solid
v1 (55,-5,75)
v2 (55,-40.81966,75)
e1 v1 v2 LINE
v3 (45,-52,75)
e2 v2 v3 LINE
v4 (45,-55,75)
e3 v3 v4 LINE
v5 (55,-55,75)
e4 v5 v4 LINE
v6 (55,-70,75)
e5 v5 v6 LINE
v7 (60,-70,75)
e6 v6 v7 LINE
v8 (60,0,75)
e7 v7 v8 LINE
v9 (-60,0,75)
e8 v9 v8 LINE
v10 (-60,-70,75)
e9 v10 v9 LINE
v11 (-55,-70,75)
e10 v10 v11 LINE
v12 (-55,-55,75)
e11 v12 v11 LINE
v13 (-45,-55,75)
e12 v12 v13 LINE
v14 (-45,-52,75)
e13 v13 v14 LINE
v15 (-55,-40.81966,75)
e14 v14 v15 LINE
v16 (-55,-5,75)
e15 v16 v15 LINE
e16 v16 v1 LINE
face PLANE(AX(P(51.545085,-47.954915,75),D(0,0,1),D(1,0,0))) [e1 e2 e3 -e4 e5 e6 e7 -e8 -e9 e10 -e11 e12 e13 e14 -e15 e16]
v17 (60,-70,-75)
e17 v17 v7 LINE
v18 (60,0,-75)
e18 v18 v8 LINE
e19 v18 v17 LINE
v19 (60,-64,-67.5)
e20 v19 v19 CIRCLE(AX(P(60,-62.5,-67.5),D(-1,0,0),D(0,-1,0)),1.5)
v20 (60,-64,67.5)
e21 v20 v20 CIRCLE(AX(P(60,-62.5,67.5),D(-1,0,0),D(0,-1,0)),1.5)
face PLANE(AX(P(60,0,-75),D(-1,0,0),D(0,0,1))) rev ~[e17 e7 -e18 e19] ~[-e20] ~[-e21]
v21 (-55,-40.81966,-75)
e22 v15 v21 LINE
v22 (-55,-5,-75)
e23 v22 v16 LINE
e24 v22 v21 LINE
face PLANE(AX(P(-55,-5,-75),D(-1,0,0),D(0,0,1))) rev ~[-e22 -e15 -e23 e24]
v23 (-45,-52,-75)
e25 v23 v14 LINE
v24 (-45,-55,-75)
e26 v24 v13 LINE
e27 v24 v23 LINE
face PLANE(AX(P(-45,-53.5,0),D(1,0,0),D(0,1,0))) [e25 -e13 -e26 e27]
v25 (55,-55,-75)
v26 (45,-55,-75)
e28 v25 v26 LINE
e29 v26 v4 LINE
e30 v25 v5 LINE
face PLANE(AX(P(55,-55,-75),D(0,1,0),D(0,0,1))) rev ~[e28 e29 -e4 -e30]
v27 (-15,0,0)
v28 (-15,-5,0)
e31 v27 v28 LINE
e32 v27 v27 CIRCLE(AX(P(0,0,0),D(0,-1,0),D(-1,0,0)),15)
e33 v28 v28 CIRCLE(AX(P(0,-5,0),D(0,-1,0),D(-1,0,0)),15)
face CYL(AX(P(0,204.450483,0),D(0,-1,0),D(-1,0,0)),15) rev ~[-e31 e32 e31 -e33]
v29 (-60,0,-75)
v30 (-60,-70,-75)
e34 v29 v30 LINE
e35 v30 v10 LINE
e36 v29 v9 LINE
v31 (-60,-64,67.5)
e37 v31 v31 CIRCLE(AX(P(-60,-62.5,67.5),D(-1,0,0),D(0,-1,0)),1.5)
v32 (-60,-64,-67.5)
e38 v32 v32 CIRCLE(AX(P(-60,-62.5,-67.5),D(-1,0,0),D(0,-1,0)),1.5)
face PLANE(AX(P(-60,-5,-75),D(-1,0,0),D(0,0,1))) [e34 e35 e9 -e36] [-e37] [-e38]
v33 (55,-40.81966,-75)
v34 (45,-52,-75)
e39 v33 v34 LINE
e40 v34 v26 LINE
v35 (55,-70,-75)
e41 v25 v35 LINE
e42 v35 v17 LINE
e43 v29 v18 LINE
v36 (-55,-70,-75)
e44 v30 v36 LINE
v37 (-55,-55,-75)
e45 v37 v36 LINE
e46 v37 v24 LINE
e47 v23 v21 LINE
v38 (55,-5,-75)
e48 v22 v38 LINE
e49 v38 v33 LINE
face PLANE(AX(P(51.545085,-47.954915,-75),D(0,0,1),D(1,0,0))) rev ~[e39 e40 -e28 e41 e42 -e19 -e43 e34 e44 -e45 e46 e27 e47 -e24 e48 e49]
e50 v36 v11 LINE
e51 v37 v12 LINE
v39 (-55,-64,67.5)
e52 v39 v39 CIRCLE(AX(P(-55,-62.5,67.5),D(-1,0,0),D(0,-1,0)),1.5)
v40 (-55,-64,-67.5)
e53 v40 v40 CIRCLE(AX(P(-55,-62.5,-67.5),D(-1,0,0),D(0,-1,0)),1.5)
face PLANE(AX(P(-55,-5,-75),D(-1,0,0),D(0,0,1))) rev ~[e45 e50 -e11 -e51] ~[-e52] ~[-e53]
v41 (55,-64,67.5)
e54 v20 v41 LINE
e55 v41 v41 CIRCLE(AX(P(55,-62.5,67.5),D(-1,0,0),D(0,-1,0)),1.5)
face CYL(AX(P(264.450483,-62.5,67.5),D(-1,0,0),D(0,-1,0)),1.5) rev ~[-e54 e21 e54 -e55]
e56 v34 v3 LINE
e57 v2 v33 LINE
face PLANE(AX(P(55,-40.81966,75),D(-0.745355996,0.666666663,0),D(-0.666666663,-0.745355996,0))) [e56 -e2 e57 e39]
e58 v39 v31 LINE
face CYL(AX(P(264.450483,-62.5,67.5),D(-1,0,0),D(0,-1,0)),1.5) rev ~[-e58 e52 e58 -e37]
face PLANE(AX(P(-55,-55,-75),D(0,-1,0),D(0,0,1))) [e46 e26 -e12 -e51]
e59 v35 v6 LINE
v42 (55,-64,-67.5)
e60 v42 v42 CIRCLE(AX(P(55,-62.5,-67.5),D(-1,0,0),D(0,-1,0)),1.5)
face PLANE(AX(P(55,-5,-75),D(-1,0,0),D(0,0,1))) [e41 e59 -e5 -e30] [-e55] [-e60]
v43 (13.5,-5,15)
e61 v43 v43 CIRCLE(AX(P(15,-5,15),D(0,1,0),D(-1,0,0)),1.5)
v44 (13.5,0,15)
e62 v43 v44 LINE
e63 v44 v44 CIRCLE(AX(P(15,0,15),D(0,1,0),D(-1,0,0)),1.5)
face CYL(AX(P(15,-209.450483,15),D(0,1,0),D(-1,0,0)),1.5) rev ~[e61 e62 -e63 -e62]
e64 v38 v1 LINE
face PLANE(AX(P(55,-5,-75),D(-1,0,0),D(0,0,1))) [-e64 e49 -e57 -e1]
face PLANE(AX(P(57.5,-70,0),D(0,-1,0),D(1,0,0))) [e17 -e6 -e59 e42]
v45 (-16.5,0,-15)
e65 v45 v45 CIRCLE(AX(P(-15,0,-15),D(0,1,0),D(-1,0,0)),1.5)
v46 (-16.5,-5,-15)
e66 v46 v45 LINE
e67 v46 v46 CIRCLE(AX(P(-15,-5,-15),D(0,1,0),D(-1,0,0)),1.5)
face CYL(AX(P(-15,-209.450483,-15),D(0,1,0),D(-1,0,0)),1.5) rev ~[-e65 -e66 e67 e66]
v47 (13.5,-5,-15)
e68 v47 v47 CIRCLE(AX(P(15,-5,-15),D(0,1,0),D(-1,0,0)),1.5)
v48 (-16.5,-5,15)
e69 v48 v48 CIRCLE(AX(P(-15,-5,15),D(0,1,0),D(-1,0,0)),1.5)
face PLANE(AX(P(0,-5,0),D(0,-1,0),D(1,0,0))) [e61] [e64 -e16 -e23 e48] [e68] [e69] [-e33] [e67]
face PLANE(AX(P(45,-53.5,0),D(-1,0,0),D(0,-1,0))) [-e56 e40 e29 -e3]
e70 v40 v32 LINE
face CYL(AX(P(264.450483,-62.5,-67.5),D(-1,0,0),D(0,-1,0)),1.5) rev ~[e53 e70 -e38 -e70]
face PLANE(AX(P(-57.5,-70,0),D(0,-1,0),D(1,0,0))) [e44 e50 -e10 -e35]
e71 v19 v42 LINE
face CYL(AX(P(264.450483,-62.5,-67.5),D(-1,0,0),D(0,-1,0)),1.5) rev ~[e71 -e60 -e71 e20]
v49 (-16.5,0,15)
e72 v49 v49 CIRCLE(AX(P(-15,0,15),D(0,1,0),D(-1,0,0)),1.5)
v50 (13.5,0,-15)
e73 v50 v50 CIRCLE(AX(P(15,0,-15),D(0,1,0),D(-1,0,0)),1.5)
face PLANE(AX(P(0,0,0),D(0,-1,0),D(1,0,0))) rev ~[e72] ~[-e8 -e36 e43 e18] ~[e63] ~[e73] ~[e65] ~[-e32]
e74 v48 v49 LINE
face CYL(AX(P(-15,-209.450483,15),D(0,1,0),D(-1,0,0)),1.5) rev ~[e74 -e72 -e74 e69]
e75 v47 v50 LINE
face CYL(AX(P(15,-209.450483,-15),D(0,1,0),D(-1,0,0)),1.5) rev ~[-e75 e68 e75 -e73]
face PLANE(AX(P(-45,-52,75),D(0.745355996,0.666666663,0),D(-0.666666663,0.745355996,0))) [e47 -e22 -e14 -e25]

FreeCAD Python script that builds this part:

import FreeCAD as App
import Part
import Sketcher

V = App.Vector

doc = App.newDocument("Part")
body = doc.addObject("PartDesign::Body", "Body")

# Sketch on XZ plane
sketch1 = body.newObject("Sketcher::SketchObject", "Sketch")
sketch1.AttachmentSupport = (doc.getObject("XZ_Plane"), [""])
sketch1.MapMode = "FlatFace"
sketch1.addGeometry([
    Part.LineSegment(V(-60, 75, 0), V(-60, -75, 0)),
    Part.LineSegment(V(-60, -75, 0), V(60, -75, 0)),
    Part.LineSegment(V(60, -75, 0), V(60, 75, 0)),
    Part.LineSegment(V(60, 75, 0), V(-60, 75, 0)),
], False)
sketch1.addConstraint([
    Sketcher.Constraint("Coincident", 0, 2, 1, 1),
    Sketcher.Constraint("Coincident", 1, 2, 2, 1),
    Sketcher.Constraint("Coincident", 2, 2, 3, 1),
    Sketcher.Constraint("Coincident", 3, 2, 0, 1),
    Sketcher.Constraint("Vertical", 0),
    Sketcher.Constraint("Horizontal", 1),
    Sketcher.Constraint("Vertical", 2),
    Sketcher.Constraint("Horizontal", 3),
    Sketcher.Constraint("Symmetric", 0, 2, 2, 2, -1, 1),
    Sketcher.Constraint("DistanceX", 1, 1, 1, 2, 120.0),
    Sketcher.Constraint("DistanceY", 0, 2, 0, 1, 150.0),
])
pad1 = body.newObject("PartDesign::Pad", "Pad")
pad1.Profile = sketch1
pad1.Length = 5

# Sketch on XZ plane
sketch2 = body.newObject("Sketcher::SketchObject", "Sketch001")
sketch2.AttachmentSupport = (doc.getObject("XZ_Plane"), [""])
sketch2.MapMode = "FlatFace"
sketch2.AttachmentOffset = App.Placement(V(0, 0, 5), App.Rotation())
sketch2.addGeometry([
    Part.LineSegment(V(-60, 75, 0), V(-60, -75, 0)),  # 0
    Part.LineSegment(V(-60, -75, 0), V(-55, -75, 0)),  # 1
    Part.LineSegment(V(-55, -75, 0), V(-55, 75, 0)),  # 2
    Part.LineSegment(V(-55, 75, 0), V(-60, 75, 0)),  # 3
    Part.LineSegment(V(55, 75, 0), V(55, -75, 0)),  # 4
    Part.LineSegment(V(55, -75, 0), V(60, -75, 0)),  # 5
    Part.LineSegment(V(60, -75, 0), V(60, 75, 0)),  # 6
    Part.LineSegment(V(60, 75, 0), V(55, 75, 0)),  # 7
], False)
sketch2.addConstraint([
    Sketcher.Constraint("Coincident", 0, 2, 1, 1),
    Sketcher.Constraint("Coincident", 1, 2, 2, 1),
    Sketcher.Constraint("Coincident", 2, 2, 3, 1),
    Sketcher.Constraint("Coincident", 3, 2, 0, 1),
    Sketcher.Constraint("Coincident", 4, 2, 5, 1),
    Sketcher.Constraint("Coincident", 5, 2, 6, 1),
    Sketcher.Constraint("Coincident", 6, 2, 7, 1),
    Sketcher.Constraint("Coincident", 7, 2, 4, 1),
    Sketcher.Constraint("Vertical", 0),
    Sketcher.Constraint("Horizontal", 1),
    Sketcher.Constraint("Vertical", 2),
    Sketcher.Constraint("Horizontal", 3),
    Sketcher.Constraint("Vertical", 4),
    Sketcher.Constraint("Horizontal", 5),
    Sketcher.Constraint("Vertical", 6),
    Sketcher.Constraint("Horizontal", 7),
    Sketcher.Constraint("Symmetric", 2, 2, 4, 2, -1, 1),
    Sketcher.Constraint("Symmetric", 0, 2, 6, 2, -1, 1),
    Sketcher.Constraint("Horizontal", 1, 2, 4, 2),
    Sketcher.Constraint("DistanceX", 1, 1, 1, 2, 5.0),
    Sketcher.Constraint("DistanceY", 0, 2, 0, 1, 150.0),
    Sketcher.Constraint("DistanceX", 0, 2, -1, 1, 60.0),
])
pad2 = body.newObject("PartDesign::Pad", "Pad001")
pad2.Profile = sketch2
pad2.Length = 65

# Sketch on YZ plane
sketch3 = body.newObject("Sketcher::SketchObject", "Sketch002")
sketch3.AttachmentSupport = (doc.getObject("YZ_Plane"), [""])
sketch3.MapMode = "FlatFace"
sketch3.AttachmentOffset = App.Placement(V(0, 0, 55), App.Rotation())
sketch3.addGeometry([
    Part.LineSegment(V(-52, 75, 0), V(-52, -75, 0)),
    Part.LineSegment(V(-52, -75, 0), V(-55, -75, 0)),
    Part.LineSegment(V(-55, -75, 0), V(-55, 75, 0)),
    Part.LineSegment(V(-55, 75, 0), V(-52, 75, 0)),
], False)
sketch3.addConstraint([
    Sketcher.Constraint("Coincident", 0, 2, 1, 1),
    Sketcher.Constraint("Coincident", 1, 2, 2, 1),
    Sketcher.Constraint("Coincident", 2, 2, 3, 1),
    Sketcher.Constraint("Coincident", 3, 2, 0, 1),
    Sketcher.Constraint("Vertical", 0),
    Sketcher.Constraint("Horizontal", 1),
    Sketcher.Constraint("Vertical", 2),
    Sketcher.Constraint("Horizontal", 3),
    Sketcher.Constraint("DistanceX", 1, 2, 1, 1, 3.0),
    Sketcher.Constraint("DistanceY", 0, 2, 0, 1, 150.0),
    Sketcher.Constraint("DistanceX", 0, 2, -1, 1, 52.0),
    Sketcher.Constraint("DistanceY", 0, 2, -1, 1, 75.0),
])
pad3 = body.newObject("PartDesign::Pad", "Pad002")
pad3.Profile = sketch3
pad3.Length = 10
pad3.Reversed = True

# Sketch on YZ plane
sketch4 = body.newObject("Sketcher::SketchObject", "Sketch003")
sketch4.AttachmentSupport = (doc.getObject("YZ_Plane"), [""])
sketch4.MapMode = "FlatFace"
sketch4.AttachmentOffset = App.Placement(V(0, 0, -55), App.Rotation())
sketch4.addGeometry([
    Part.LineSegment(V(-55, 75, 0), V(-55, -75, 0)),
    Part.LineSegment(V(-55, -75, 0), V(-52, -75, 0)),
    Part.LineSegment(V(-52, -75, 0), V(-52, 75, 0)),
    Part.LineSegment(V(-52, 75, 0), V(-55, 75, 0)),
], False)
sketch4.addConstraint([
    Sketcher.Constraint("Coincident", 0, 2, 1, 1),
    Sketcher.Constraint("Coincident", 1, 2, 2, 1),
    Sketcher.Constraint("Coincident", 2, 2, 3, 1),
    Sketcher.Constraint("Coincident", 3, 2, 0, 1),
    Sketcher.Constraint("Vertical", 0),
    Sketcher.Constraint("Horizontal", 1),
    Sketcher.Constraint("Vertical", 2),
    Sketcher.Constraint("Horizontal", 3),
    Sketcher.Constraint("DistanceX", 1, 1, 1, 2, 3.0),
    Sketcher.Constraint("DistanceY", 0, 2, 0, 1, 150.0),
    Sketcher.Constraint("DistanceX", 0, 2, -1, 1, 55.0),
    Sketcher.Constraint("DistanceY", 0, 2, -1, 1, 75.0),
])
pad4 = body.newObject("PartDesign::Pad", "Pad003")
pad4.Profile = sketch4
pad4.Length = 10

# Sketch on XY plane
sketch5 = body.newObject("Sketcher::SketchObject", "Sketch004")
sketch5.AttachmentSupport = (doc.getObject("XY_Plane"), [""])
sketch5.MapMode = "FlatFace"
sketch5.AttachmentOffset = App.Placement(V(0, 0, 75), App.Rotation())
sketch5.addGeometry([
    Part.LineSegment(V(55, -40.81966, 0), V(45, -52, 0)),
    Part.LineSegment(V(45, -52, 0), V(55, -52, 0)),
    Part.LineSegment(V(55, -52, 0), V(55, -40.81966, 0)),
], False)
sketch5.addConstraint([
    Sketcher.Constraint("Coincident", 0, 2, 1, 1),
    Sketcher.Constraint("Coincident", 1, 2, 2, 1),
    Sketcher.Constraint("Coincident", 2, 2, 0, 1),
    Sketcher.Constraint("Horizontal", 1),
    Sketcher.Constraint("Vertical", 2),
    Sketcher.Constraint("DistanceX", 1, 1, 1, 2, 10.0),
    Sketcher.Constraint("Distance", 0, 15.0),
    Sketcher.Constraint("DistanceX", -1, 1, 0, 2, 45.0),
    Sketcher.Constraint("DistanceY", 0, 2, -1, 1, 52.0),
])
pad5 = body.newObject("PartDesign::Pad", "Pad004")
pad5.Profile = sketch5
pad5.Length = 150
pad5.Reversed = True

# Sketch on XY plane
sketch6 = body.newObject("Sketcher::SketchObject", "Sketch005")
sketch6.AttachmentSupport = (doc.getObject("XY_Plane"), [""])
sketch6.MapMode = "FlatFace"
sketch6.AttachmentOffset = App.Placement(V(0, 0, 75), App.Rotation())
sketch6.addGeometry([
    Part.LineSegment(V(55, -40.81966, 0), V(45, -52, 0)),  # 0
    Part.LineSegment(V(45, -52, 0), V(55, -52, 0)),  # 1
    Part.LineSegment(V(55, -52, 0), V(55, -40.81966, 0)),  # 2
    Part.LineSegment(V(-55, -52, 0), V(-45, -52, 0)),  # 3
    Part.LineSegment(V(-45, -52, 0), V(-55, -40.81966, 0)),  # 4
    Part.LineSegment(V(-55, -40.81966, 0), V(-55, -52, 0)),  # 5
], False)
sketch6.addConstraint([
    Sketcher.Constraint("Coincident", 0, 2, 1, 1),
    Sketcher.Constraint("Coincident", 1, 2, 2, 1),
    Sketcher.Constraint("Coincident", 2, 2, 0, 1),
    Sketcher.Constraint("Coincident", 3, 2, 4, 1),
    Sketcher.Constraint("Coincident", 4, 2, 5, 1),
    Sketcher.Constraint("Coincident", 5, 2, 3, 1),
    Sketcher.Constraint("Horizontal", 1),
    Sketcher.Constraint("Vertical", 2),
    Sketcher.Constraint("Horizontal", 3),
    Sketcher.Constraint("Vertical", 5),
    Sketcher.Constraint("Symmetric", 0, 2, 3, 2, -2),
    Sketcher.Constraint("Symmetric", 2, 2, 4, 2, -2),
    Sketcher.Constraint("DistanceX", 1, 1, 1, 2, 10.0),
    Sketcher.Constraint("Distance", 0, 15.0),
    Sketcher.Constraint("DistanceX", -1, 1, 0, 2, 45.0),
    Sketcher.Constraint("DistanceY", 0, 2, -1, 1, 52.0),
])
pad6 = body.newObject("PartDesign::Pad", "Pad005")
pad6.Profile = sketch6
pad6.Length = 150
pad6.Reversed = True

# Sketch on XZ plane
sketch7 = body.newObject("Sketcher::SketchObject", "Sketch006")
sketch7.AttachmentSupport = (doc.getObject("XZ_Plane"), [""])
sketch7.MapMode = "FlatFace"
sketch7.AttachmentOffset = App.Placement(V(0, 0, 5), App.Rotation())
sketch7.addGeometry([
    Part.Circle(V(-15, 15, 0), V(0, 0, 1), 1.5),  # 0
    Part.Circle(V(0, 0, 0), V(0, 0, 1), 1.5),  # 1
    Part.Circle(V(-15, -15, 0), V(0, 0, 1), 1.5),  # 2
    Part.Circle(V(15, -15, 0), V(0, 0, 1), 1.5),  # 3
    Part.Circle(V(15, 15, 0), V(0, 0, 1), 1.5),  # 4
], False)
sketch7.addConstraint([
    Sketcher.Constraint("Coincident", 1, 3, -1, 1),
    Sketcher.Constraint("Equal", 0, 1),
    Sketcher.Constraint("Equal", 1, 2),
    Sketcher.Constraint("Equal", 2, 3),
    Sketcher.Constraint("Equal", 3, 4),
    Sketcher.Constraint("Symmetric", 0, 3, 3, 3, -1, 1),
    Sketcher.Constraint("Symmetric", 2, 3, 4, 3, -1, 1),
    Sketcher.Constraint("Symmetric", 2, 3, 3, 3, -2),
    Sketcher.Constraint("Diameter", 0, 3.0),
    Sketcher.Constraint("DistanceX", 0, 3, -1, 1, 15.0),
    Sketcher.Constraint("DistanceY", -1, 1, 0, 3, 15.0),
])
doc.recompute()
hole = body.newObject("PartDesign::Hole", "Hole")
hole.Profile = sketch7
hole.ThreadType = "None"
hole.Diameter = 3
hole.DepthType = "ThroughAll"

# Sketch on XZ plane
sketch8 = body.newObject("Sketcher::SketchObject", "Sketch007")
sketch8.AttachmentSupport = (doc.getObject("XZ_Plane"), [""])
sketch8.MapMode = "FlatFace"
sketch8.addGeometry(Part.Circle(V(0, 0, 0), V(0, 0, 1), 15), False)
sketch8.addConstraint([
    Sketcher.Constraint("Coincident", 0, 3, -1, 1),
    Sketcher.Constraint("Diameter", 0, 30.0),
])
doc.recompute()
hole2 = body.newObject("PartDesign::Hole", "Hole001")
hole2.Profile = sketch8
hole2.ThreadType = "None"
hole2.Diameter = 30
hole2.DepthType = "ThroughAll"
hole2.Reversed = True

# Sketch on YZ plane
sketch9 = body.newObject("Sketcher::SketchObject", "Sketch008")
sketch9.AttachmentSupport = (doc.getObject("YZ_Plane"), [""])
sketch9.MapMode = "FlatFace"
sketch9.AttachmentOffset = App.Placement(V(0, 0, 60), App.Rotation())
sketch9.addGeometry([
    Part.Circle(V(-62.5, -67.5, 0), V(0, 0, 1), 1.5),
    Part.Circle(V(-62.5, 67.5, 0), V(0, 0, 1), 1.5),
], False)
sketch9.addConstraint([
    Sketcher.Constraint("Equal", 0, 1),
    Sketcher.Constraint("Symmetric", 0, 3, 1, 3, -1),
    Sketcher.Constraint("Diameter", 0, 3.0),
    Sketcher.Constraint("DistanceY", 0, 3, 1, 3, 135.0),
    Sketcher.Constraint("DistanceX", 0, 3, -1, 1, 62.5),
])
doc.recompute()
hole3 = body.newObject("PartDesign::Hole", "Hole002")
hole3.Profile = sketch9
hole3.ThreadType = "None"
hole3.Diameter = 3
hole3.DepthType = "ThroughAll"

doc.recompute()
